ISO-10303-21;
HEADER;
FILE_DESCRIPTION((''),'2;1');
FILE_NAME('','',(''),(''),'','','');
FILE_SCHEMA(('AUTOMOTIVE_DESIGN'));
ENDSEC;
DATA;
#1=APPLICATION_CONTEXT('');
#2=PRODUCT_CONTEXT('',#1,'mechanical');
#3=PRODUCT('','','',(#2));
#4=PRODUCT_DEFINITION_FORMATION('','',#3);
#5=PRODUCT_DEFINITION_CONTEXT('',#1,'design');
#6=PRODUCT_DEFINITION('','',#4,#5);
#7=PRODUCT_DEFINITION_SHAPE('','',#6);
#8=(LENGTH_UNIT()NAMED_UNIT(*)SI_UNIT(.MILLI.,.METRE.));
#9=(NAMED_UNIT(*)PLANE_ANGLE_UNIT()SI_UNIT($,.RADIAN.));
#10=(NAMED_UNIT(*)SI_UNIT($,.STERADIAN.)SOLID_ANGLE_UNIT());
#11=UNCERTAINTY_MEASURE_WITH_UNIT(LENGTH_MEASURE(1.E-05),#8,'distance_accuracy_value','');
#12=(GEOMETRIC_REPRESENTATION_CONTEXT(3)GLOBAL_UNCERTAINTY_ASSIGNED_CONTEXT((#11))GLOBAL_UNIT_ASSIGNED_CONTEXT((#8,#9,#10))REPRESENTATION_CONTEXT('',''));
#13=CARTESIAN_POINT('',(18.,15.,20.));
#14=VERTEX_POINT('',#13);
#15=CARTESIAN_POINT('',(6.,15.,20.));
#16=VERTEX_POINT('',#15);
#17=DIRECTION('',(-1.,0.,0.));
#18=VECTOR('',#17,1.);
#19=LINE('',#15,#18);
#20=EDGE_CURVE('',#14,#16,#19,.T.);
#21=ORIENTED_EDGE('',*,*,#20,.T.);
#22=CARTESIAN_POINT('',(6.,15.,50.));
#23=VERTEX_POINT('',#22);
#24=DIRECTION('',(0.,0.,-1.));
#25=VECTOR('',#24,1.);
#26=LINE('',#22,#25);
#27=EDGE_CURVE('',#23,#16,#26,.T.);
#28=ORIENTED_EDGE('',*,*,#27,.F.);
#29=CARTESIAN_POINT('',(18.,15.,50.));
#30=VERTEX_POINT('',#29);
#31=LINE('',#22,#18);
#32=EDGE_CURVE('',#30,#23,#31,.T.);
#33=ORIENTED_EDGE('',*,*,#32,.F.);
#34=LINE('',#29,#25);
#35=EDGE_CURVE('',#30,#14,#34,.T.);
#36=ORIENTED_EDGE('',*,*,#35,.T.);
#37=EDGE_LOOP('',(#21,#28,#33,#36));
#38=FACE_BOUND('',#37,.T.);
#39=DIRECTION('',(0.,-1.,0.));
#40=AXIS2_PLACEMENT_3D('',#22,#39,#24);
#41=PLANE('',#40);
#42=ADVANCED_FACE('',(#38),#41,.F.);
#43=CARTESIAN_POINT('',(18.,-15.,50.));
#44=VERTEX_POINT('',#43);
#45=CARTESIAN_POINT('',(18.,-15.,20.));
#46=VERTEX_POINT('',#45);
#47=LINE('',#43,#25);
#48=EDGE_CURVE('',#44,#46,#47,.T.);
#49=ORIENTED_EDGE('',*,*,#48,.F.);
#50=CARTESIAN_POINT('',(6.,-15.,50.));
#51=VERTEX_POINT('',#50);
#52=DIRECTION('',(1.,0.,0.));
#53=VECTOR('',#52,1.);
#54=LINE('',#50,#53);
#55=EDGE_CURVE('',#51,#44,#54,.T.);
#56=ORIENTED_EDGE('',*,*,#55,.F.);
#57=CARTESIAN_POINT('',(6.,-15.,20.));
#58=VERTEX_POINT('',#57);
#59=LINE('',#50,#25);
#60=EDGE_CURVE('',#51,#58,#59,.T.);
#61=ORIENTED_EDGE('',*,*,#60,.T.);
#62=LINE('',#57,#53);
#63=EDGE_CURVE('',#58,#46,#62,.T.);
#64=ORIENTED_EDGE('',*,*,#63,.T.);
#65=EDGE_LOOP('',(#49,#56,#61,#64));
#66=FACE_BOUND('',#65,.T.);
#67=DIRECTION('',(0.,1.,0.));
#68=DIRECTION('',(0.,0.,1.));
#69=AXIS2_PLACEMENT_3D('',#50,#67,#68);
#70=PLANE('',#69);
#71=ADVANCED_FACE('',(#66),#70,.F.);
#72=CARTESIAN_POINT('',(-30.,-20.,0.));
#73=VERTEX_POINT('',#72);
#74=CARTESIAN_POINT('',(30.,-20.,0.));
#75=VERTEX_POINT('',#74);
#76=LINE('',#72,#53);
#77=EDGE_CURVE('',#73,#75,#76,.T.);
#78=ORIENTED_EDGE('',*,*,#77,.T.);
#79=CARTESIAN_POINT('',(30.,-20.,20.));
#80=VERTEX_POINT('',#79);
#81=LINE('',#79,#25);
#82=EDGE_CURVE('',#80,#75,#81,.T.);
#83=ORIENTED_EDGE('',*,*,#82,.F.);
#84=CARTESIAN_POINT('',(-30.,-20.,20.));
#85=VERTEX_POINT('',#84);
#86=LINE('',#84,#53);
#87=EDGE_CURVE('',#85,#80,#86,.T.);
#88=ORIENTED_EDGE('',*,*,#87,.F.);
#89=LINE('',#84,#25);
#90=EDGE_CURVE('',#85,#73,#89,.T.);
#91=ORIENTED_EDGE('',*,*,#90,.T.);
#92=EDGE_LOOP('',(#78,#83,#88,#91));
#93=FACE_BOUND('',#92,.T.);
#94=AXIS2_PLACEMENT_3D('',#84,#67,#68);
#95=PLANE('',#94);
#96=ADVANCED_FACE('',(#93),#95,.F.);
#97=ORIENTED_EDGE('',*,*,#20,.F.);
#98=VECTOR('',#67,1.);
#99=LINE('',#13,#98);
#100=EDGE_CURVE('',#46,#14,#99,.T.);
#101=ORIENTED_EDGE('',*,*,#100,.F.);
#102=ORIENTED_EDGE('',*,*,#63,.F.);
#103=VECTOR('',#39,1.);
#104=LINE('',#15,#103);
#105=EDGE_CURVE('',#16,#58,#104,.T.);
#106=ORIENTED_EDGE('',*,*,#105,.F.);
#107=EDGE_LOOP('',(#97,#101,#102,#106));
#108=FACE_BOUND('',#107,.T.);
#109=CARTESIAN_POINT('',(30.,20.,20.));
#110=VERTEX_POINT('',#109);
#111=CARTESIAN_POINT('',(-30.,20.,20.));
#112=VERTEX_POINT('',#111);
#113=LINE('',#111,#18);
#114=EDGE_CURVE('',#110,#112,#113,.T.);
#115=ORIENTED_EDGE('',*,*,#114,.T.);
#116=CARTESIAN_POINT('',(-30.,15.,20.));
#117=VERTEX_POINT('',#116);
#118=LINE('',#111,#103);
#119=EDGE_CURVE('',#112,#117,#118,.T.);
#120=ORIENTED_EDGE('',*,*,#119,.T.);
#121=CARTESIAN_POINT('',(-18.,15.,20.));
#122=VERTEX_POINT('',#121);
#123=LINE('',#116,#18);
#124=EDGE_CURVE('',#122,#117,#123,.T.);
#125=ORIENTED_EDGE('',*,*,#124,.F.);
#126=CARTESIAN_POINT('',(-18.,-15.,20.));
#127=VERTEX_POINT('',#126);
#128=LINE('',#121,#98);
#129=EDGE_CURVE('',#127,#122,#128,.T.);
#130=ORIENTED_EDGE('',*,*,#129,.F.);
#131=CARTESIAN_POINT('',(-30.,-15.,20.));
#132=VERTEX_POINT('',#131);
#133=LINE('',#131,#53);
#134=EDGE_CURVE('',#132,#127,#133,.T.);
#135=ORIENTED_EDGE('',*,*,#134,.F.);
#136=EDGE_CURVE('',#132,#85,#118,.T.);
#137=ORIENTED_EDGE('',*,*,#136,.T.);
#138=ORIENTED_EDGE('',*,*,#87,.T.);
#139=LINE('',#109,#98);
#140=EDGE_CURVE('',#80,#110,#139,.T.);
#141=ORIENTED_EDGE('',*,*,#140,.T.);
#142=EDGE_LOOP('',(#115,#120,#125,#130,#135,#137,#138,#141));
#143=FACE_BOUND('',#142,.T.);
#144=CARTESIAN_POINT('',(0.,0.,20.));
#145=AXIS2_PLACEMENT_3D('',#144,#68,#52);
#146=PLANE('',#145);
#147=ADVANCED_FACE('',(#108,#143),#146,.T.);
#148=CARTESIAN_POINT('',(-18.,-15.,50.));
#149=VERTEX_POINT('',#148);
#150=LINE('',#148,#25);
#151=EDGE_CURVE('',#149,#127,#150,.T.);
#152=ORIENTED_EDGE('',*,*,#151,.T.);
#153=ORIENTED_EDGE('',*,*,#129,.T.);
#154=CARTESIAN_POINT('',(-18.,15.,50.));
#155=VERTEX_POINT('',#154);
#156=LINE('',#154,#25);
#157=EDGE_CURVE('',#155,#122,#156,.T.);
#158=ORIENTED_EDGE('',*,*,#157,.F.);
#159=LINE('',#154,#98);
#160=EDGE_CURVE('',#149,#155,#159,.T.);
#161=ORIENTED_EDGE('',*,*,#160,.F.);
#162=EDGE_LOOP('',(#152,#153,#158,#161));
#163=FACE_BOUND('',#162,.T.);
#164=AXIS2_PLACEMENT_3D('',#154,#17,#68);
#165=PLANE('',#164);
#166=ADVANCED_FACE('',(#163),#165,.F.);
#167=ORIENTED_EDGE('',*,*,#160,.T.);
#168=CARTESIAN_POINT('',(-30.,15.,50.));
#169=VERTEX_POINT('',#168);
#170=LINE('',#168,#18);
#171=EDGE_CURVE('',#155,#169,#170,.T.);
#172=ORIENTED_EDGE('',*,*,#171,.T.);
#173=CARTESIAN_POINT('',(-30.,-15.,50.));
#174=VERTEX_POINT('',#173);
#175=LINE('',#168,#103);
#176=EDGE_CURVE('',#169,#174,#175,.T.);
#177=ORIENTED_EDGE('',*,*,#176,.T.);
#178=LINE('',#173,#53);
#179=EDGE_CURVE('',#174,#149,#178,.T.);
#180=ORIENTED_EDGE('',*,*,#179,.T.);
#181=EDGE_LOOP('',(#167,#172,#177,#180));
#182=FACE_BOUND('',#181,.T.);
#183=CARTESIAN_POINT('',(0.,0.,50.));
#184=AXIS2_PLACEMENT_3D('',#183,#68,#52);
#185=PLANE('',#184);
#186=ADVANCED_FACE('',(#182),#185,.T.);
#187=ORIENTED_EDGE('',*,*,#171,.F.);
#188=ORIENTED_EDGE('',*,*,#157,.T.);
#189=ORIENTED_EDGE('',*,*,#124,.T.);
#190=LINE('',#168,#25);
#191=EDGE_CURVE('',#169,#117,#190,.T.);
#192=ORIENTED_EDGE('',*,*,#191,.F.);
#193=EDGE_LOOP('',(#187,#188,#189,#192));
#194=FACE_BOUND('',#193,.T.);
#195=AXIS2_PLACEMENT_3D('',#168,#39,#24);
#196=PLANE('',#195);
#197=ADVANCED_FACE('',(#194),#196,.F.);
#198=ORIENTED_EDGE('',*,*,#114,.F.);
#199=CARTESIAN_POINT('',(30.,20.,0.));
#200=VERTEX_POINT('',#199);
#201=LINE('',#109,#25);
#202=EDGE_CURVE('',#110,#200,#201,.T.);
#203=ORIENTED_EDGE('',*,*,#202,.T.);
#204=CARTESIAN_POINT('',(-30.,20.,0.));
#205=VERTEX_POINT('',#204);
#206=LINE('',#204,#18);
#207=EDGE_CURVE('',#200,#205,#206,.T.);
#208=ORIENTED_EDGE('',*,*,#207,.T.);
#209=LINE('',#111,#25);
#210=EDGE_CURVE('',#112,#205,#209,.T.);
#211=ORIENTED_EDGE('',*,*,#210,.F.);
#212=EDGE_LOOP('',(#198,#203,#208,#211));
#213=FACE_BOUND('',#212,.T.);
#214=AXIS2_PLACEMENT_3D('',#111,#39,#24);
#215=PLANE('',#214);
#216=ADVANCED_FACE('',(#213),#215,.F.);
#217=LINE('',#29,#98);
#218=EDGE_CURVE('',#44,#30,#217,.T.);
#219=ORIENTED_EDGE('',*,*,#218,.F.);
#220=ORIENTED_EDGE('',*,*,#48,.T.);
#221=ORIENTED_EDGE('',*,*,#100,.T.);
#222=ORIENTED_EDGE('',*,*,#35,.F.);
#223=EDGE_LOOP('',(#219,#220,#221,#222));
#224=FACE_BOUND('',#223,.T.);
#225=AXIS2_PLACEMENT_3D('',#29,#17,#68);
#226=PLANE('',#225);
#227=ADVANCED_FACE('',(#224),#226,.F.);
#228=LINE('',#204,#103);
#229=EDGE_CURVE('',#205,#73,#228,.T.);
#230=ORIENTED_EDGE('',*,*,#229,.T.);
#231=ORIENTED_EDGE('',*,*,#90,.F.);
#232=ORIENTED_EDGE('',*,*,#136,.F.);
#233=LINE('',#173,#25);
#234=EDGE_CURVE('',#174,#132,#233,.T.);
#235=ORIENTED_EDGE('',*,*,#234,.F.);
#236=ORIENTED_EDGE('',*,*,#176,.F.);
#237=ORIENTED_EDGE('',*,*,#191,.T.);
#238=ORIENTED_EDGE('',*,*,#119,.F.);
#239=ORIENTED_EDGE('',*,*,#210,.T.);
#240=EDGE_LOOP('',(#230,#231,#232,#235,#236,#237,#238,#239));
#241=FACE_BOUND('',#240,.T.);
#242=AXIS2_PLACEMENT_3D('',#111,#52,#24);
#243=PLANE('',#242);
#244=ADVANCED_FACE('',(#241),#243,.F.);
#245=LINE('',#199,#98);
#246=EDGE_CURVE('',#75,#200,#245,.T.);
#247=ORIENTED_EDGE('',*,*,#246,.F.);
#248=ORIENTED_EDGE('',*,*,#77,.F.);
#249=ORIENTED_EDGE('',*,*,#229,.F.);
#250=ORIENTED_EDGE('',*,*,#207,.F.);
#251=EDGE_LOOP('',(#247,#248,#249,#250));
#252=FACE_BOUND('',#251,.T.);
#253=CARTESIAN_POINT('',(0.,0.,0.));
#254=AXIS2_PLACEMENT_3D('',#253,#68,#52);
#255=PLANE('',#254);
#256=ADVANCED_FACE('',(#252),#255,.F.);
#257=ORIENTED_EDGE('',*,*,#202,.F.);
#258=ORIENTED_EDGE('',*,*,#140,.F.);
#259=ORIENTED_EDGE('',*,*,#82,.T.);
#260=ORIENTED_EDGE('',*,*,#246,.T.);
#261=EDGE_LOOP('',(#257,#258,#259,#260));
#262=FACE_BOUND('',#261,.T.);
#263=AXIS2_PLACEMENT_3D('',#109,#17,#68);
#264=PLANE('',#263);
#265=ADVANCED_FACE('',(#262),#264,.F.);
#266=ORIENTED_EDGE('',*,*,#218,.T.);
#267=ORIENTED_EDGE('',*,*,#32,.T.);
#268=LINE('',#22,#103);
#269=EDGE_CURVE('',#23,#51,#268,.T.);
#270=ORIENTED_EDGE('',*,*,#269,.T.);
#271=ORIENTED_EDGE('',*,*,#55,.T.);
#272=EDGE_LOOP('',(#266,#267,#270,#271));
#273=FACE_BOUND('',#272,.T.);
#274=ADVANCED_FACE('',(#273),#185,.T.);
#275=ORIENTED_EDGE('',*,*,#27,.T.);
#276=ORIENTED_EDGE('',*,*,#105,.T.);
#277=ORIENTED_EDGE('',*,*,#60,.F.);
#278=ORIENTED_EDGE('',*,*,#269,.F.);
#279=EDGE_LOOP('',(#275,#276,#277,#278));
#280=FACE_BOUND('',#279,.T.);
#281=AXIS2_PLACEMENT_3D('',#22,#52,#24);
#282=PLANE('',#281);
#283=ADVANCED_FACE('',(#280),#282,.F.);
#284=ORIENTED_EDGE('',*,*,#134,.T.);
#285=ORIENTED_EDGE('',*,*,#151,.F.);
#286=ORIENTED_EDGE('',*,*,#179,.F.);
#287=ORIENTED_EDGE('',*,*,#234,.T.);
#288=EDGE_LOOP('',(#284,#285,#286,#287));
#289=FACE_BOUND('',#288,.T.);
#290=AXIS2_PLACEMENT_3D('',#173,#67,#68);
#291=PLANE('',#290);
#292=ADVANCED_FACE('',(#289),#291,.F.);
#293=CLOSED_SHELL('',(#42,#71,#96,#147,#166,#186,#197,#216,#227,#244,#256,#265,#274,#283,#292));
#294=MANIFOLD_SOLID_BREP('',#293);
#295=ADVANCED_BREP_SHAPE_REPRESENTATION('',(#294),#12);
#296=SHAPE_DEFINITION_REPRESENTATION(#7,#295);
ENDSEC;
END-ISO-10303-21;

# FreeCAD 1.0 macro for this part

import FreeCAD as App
import Part
import Sketcher

V = App.Vector

doc = App.newDocument("Part")
body = doc.addObject("PartDesign::Body", "Body")

sketch1 = body.newObject("Sketcher::SketchObject", "Sketch")
sketch1.AttachmentSupport = (doc.getObject("XY_Plane"), [""])
sketch1.MapMode = "FlatFace"
sketch1.addGeometry(Part.LineSegment(V(-30, 20, 0), V(-30, -20, 0)), False)
sketch1.addGeometry(Part.LineSegment(V(-30, -20, 0), V(30, -20, 0)), False)
sketch1.addGeometry(Part.LineSegment(V(30, -20, 0), V(30, 20, 0)), False)
sketch1.addGeometry(Part.LineSegment(V(30, 20, 0), V(-30, 20, 0)), False)
sketch1.addConstraint(Sketcher.Constraint("Coincident", 0, 2, 1, 1))
sketch1.addConstraint(Sketcher.Constraint("Coincident", 1, 2, 2, 1))
sketch1.addConstraint(Sketcher.Constraint("Coincident", 2, 2, 3, 1))
sketch1.addConstraint(Sketcher.Constraint("Coincident", 3, 2, 0, 1))
sketch1.addConstraint(Sketcher.Constraint("Vertical", 0))
sketch1.addConstraint(Sketcher.Constraint("Horizontal", 1))
sketch1.addConstraint(Sketcher.Constraint("Vertical", 2))
sketch1.addConstraint(Sketcher.Constraint("Horizontal", 3))
sketch1.addConstraint(Sketcher.Constraint("Symmetric", 0, 2, 2, 2, -1, 1))
sketch1.addConstraint(Sketcher.Constraint("DistanceX", 1, 1, 1, 2, 60.0))
sketch1.addConstraint(Sketcher.Constraint("DistanceY", 0, 2, 0, 1, 40.0))
pad1 = body.newObject("PartDesign::Pad", "Pad")
pad1.Profile = sketch1
pad1.Length = 20

sketch2 = body.newObject("Sketcher::SketchObject", "Sketch001")
sketch2.AttachmentSupport = (doc.getObject("XY_Plane"), [""])
sketch2.MapMode = "FlatFace"
sketch2.AttachmentOffset = App.Placement(V(0, 0, 20), App.Rotation())
sketch2.addGeometry(Part.LineSegment(V(-30, 15, 0), V(-30, -15, 0)), False)
sketch2.addGeometry(Part.LineSegment(V(-30, -15, 0), V(-18, -15, 0)), False)
sketch2.addGeometry(Part.LineSegment(V(-18, -15, 0), V(-18, 15, 0)), False)
sketch2.addGeometry(Part.LineSegment(V(-18, 15, 0), V(-30, 15, 0)), False)
sketch2.addConstraint(Sketcher.Constraint("Coincident", 0, 2, 1, 1))
sketch2.addConstraint(Sketcher.Constraint("Coincident", 1, 2, 2, 1))
sketch2.addConstraint(Sketcher.Constraint("Coincident", 2, 2, 3, 1))
sketch2.addConstraint(Sketcher.Constraint("Coincident", 3, 2, 0, 1))
sketch2.addConstraint(Sketcher.Constraint("Vertical", 0))
sketch2.addConstraint(Sketcher.Constraint("Horizontal", 1))
sketch2.addConstraint(Sketcher.Constraint("Vertical", 2))
sketch2.addConstraint(Sketcher.Constraint("Horizontal", 3))
sketch2.addConstraint(Sketcher.Constraint("DistanceX", 1, 1, 1, 2, 12.0))
sketch2.addConstraint(Sketcher.Constraint("DistanceY", 0, 2, 0, 1, 30.0))
sketch2.addConstraint(Sketcher.Constraint("DistanceX", 0, 2, -1, 1, 30.0))
sketch2.addConstraint(Sketcher.Constraint("DistanceY", 0, 2, -1, 1, 15.0))
pad2 = body.newObject("PartDesign::Pad", "Pad001")
pad2.Profile = sketch2
pad2.Length = 30

sketch3 = body.newObject("Sketcher::SketchObject", "Sketch002")
sketch3.AttachmentSupport = (doc.getObject("XY_Plane"), [""])
sketch3.MapMode = "FlatFace"
sketch3.AttachmentOffset = App.Placement(V(0, 0, 20), App.Rotation())
sketch3.addGeometry(Part.LineSegment(V(6, 15, 0), V(6, -15, 0)), False)
sketch3.addGeometry(Part.LineSegment(V(6, -15, 0), V(18, -15, 0)), False)
sketch3.addGeometry(Part.LineSegment(V(18, -15, 0), V(18, 15, 0)), False)
sketch3.addGeometry(Part.LineSegment(V(18, 15, 0), V(6, 15, 0)), False)
sketch3.addConstraint(Sketcher.Constraint("Coincident", 0, 2, 1, 1))
sketch3.addConstraint(Sketcher.Constraint("Coincident", 1, 2, 2, 1))
sketch3.addConstraint(Sketcher.Constraint("Coincident", 2, 2, 3, 1))
sketch3.addConstraint(Sketcher.Constraint("Coincident", 3, 2, 0, 1))
sketch3.addConstraint(Sketcher.Constraint("Vertical", 0))
sketch3.addConstraint(Sketcher.Constraint("Horizontal", 1))
sketch3.addConstraint(Sketcher.Constraint("Vertical", 2))
sketch3.addConstraint(Sketcher.Constraint("Horizontal", 3))
sketch3.addConstraint(Sketcher.Constraint("DistanceX", 1, 1, 1, 2, 12.0))
sketch3.addConstraint(Sketcher.Constraint("DistanceY", 0, 2, 0, 1, 30.0))
sketch3.addConstraint(Sketcher.Constraint("DistanceX", -1, 1, 0, 2, 6.0))
sketch3.addConstraint(Sketcher.Constraint("DistanceY", 0, 2, -1, 1, 15.0))
pad3 = body.newObject("PartDesign::Pad", "Pad002")
pad3.Profile = sketch3
pad3.Length = 30

doc.recompute()
